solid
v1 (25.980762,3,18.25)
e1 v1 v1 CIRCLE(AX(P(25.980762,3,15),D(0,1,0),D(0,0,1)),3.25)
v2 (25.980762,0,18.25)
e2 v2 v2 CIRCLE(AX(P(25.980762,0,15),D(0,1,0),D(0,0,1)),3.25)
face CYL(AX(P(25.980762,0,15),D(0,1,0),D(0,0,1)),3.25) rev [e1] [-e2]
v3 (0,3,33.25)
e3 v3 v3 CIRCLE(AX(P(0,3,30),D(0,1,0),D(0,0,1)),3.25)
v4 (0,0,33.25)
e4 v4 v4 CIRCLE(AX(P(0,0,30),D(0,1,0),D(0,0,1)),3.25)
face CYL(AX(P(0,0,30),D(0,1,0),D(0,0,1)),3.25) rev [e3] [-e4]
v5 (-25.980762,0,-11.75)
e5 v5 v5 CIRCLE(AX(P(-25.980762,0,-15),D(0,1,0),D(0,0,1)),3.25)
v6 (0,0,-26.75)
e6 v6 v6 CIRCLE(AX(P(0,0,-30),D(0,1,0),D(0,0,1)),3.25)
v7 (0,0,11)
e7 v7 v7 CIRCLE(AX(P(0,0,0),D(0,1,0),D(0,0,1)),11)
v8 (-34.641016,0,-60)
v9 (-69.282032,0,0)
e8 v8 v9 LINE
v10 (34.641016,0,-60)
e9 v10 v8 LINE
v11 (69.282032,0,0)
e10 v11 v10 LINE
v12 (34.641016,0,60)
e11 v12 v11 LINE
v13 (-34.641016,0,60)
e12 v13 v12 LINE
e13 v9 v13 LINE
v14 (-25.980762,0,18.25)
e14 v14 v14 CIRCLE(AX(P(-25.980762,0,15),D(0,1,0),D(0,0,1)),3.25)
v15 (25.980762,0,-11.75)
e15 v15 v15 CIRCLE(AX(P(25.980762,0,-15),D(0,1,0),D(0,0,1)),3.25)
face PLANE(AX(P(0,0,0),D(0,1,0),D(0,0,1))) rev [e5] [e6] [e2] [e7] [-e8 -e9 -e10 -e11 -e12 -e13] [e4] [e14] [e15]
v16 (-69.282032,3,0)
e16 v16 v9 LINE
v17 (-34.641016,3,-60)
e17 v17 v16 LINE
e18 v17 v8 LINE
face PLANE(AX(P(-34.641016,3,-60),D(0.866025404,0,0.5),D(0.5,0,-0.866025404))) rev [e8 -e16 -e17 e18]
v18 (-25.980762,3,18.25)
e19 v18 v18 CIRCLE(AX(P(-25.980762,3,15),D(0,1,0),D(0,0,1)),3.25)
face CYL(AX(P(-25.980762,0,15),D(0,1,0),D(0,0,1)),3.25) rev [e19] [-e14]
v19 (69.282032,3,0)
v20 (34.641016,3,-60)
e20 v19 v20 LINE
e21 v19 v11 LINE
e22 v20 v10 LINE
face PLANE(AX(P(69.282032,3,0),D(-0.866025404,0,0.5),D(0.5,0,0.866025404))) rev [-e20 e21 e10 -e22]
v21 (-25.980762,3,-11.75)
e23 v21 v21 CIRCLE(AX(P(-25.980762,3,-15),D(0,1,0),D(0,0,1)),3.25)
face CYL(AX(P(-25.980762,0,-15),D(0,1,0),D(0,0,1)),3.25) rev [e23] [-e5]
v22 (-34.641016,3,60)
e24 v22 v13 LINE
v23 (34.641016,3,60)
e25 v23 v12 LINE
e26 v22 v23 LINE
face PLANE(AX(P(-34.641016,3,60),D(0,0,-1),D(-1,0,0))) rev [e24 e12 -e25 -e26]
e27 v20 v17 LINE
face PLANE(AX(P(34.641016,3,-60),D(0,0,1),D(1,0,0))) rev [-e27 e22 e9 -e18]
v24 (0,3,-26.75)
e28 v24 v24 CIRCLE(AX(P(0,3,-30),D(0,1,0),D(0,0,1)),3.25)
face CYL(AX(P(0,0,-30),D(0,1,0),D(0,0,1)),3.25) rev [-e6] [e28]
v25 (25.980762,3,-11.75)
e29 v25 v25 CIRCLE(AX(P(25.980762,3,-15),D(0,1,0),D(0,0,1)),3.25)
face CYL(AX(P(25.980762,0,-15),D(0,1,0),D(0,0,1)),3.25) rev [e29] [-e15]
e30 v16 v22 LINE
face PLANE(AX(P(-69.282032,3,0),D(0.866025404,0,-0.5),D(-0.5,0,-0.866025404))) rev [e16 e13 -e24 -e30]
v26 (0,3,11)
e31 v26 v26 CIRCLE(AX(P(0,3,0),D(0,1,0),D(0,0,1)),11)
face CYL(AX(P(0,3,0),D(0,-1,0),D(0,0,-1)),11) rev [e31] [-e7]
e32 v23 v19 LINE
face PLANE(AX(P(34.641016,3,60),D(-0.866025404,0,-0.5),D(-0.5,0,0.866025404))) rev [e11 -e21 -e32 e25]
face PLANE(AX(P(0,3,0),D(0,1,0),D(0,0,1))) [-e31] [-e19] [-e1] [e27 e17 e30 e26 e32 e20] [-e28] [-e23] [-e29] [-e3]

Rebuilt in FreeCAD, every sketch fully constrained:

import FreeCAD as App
import Part
import Sketcher
from FreeCAD import Vector
Q = App.Units.Quantity


def add_polygon(sketch, points):
    """Adds a closed chain of lines whose ends are joined by coincident constraints."""
    first, n = sketch.GeometryCount, len(points)
    for a, b in zip(points, points[1:] + points[:1]):
        sketch.addGeometry(Part.LineSegment(App.Vector(*a, 0), App.Vector(*b, 0)), False)
    for i in range(n):
        sketch.addConstraint(Sketcher.Constraint("Coincident", first + i, 2, first + (i + 1) % n, 1))

doc = App.newDocument("Part")
body = doc.addObject("PartDesign::Body", "Body")

# Sketch on XZ plane
sketch1 = doc.addObject("Sketcher::SketchObject", "Sketch")
body.addObject(sketch1)
sketch1.AttachmentSupport = (doc.XZ_Plane, [""])
sketch1.MapMode = "FlatFace"
add_polygon(sketch1, [(69, 0), (35, -60), (-35, -60), (-69, 0), (-35, 60), (35, 60)])  # lines 0-5
sketch1.addGeometry(Part.Circle(Vector(0, 0, 0), Vector(0, 0, 1), 11), False)  # 6
sketch1.addConstraint(Sketcher.Constraint("Horizontal", 1))
sketch1.addConstraint(Sketcher.Constraint("Horizontal", 4))
sketch1.addConstraint(Sketcher.Constraint("Coincident", 6, 3, -1, 1))
sketch1.addConstraint(Sketcher.Constraint("Symmetric", 0, 2, 3, 2, -1, 1))
sketch1.addConstraint(Sketcher.Constraint("Symmetric", 2, 2, 5, 2, -1, 1))
sketch1.addConstraint(Sketcher.Constraint("PointOnObject", 2, 2, -1))
sketch1.addConstraint(Sketcher.Constraint("Parallel", 2, 5))
sketch1.addConstraint(Sketcher.Constraint("Vertical", 1, 2, 3, 2))
sketch1.addConstraint(Sketcher.Constraint("Diameter", 6, Q("22 mm")))
sketch1.addConstraint(Sketcher.Constraint("Angle", 0, Q("-120 deg")))
sketch1.addConstraint(Sketcher.Constraint("DistanceY", 0, 2, -1, 1, Q("60 mm")))
sketch1.addConstraint(Sketcher.Constraint("DistanceX", 1, 2, 1, 1, Q("69.282032 mm")))
pad1 = doc.addObject("PartDesign::Pad", "Pad")
body.addObject(pad1)
pad1.Profile = sketch1
pad1.Length = 3
pad1.Reversed = True

# Sketch on XZ plane
sketch2 = doc.addObject("Sketcher::SketchObject", "Sketch001")
body.addObject(sketch2)
sketch2.AttachmentSupport = (doc.XZ_Plane, [""])
sketch2.MapMode = "FlatFace"
sketch2.AttachmentOffset = App.Placement(Vector(0, 0, -3), App.Rotation())
sketch2.addGeometry(Part.Circle(Vector(0, -30, 0), Vector(0, 0, 1), 3.2), False)
sketch2.addGeometry(Part.Circle(Vector(26, -15, 0), Vector(0, 0, 1), 3.2), False)
sketch2.addGeometry(Part.Circle(Vector(26, 15, 0), Vector(0, 0, 1), 3.2), False)
sketch2.addGeometry(Part.Circle(Vector(0, 30, 0), Vector(0, 0, 1), 3.2), False)
sketch2.addGeometry(Part.Circle(Vector(-26, 15, 0), Vector(0, 0, 1), 3.2), False)
sketch2.addGeometry(Part.Circle(Vector(-26, -15, 0), Vector(0, 0, 1), 3.2), False)
sketch2.addConstraint(Sketcher.Constraint("Equal", 0, 1))
sketch2.addConstraint(Sketcher.Constraint("Equal", 1, 2))
sketch2.addConstraint(Sketcher.Constraint("Equal", 2, 3))
sketch2.addConstraint(Sketcher.Constraint("Equal", 3, 4))
sketch2.addConstraint(Sketcher.Constraint("Equal", 4, 5))
sketch2.addConstraint(Sketcher.Constraint("Symmetric", 0, 3, 3, 3, -1, 1))
sketch2.addConstraint(Sketcher.Constraint("Symmetric", 1, 3, 4, 3, -1, 1))
sketch2.addConstraint(Sketcher.Constraint("Symmetric", 2, 3, 5, 3, -1, 1))
sketch2.addConstraint(Sketcher.Constraint("Symmetric", 2, 3, 4, 3, -2))
sketch2.addConstraint(Sketcher.Constraint("PointOnObject", 0, 3, -2))
sketch2.addConstraint(Sketcher.Constraint("Diameter", 0, Q("6.5 mm")))
sketch2.addConstraint(Sketcher.Constraint("DistanceY", 0, 3, -1, 1, Q("30 mm")))
sketch2.addConstraint(Sketcher.Constraint("DistanceY", 1, 3, -1, 1, Q("15 mm")))
sketch2.addConstraint(Sketcher.Constraint("DistanceX", -1, 1, 1, 3, Q("25.980762 mm")))
pocket1 = doc.addObject("PartDesign::Pocket", "Pocket")
body.addObject(pocket1)
pocket1.Profile = sketch2
pocket1.Type = "ThroughAll"
pocket1.Reversed = True

doc.recompute()
